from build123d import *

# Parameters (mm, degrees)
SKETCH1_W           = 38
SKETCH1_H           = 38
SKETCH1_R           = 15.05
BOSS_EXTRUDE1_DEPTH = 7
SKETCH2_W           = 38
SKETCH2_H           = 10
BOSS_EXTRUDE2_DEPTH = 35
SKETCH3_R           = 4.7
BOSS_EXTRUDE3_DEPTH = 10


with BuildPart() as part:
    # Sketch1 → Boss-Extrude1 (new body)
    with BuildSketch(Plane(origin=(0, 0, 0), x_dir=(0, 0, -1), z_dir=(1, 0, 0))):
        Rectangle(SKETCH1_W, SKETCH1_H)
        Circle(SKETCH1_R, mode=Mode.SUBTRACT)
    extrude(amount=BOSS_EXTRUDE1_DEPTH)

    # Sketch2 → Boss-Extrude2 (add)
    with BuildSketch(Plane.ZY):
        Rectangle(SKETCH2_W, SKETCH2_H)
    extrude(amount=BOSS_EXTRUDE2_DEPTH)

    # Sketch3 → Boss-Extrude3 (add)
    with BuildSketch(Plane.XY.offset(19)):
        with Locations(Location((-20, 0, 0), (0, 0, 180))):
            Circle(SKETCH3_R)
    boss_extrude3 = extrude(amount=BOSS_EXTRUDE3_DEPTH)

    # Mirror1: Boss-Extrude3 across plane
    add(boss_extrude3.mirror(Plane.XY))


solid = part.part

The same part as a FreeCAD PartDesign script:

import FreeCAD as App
import Part
import Sketcher
from FreeCAD import Vector

doc = App.newDocument("Part")
params = doc.addObject("Spreadsheet::Sheet", "Params")
for row, (alias, value) in enumerate([
    ("sketch1_diameter", "30.1 mm"),
    ("sketch1_width", "38 mm"),
    ("pad1_length", "7 mm"),
    ("sketch2_width", "10 mm"),
    ("sketch2_height", "38 mm"),
    ("pad2_length", "35 mm"),
    ("sketch3_diameter", "9.4 mm"),
    ("pad3_length", "10 mm"),
], start=1):
    params.set(f"A{row}", alias)
    params.set(f"B{row}", "=" + value)
    params.setAlias(f"B{row}", alias)

body = doc.addObject("PartDesign::Body", "Body")

sketch1 = body.newObject("Sketcher::SketchObject", "Sketch")
sketch1.AttachmentSupport = (doc.getObject("YZ_Plane"), [""])
sketch1.MapMode = "FlatFace"
sketch1.addGeometry([
    Part.LineSegment(Vector(19, 19, 0), Vector(-19, 19, 0)),
    Part.LineSegment(Vector(-19, 19, 0), Vector(-19, -19, 0)),
    Part.LineSegment(Vector(-19, -19, 0), Vector(19, -19, 0)),
    Part.LineSegment(Vector(19, -19, 0), Vector(19, 19, 0)),
    Part.Circle(Vector(0, 0, 0), Vector(0, 0, 1), 15.05),
], False)
sketch1.addConstraint([
    Sketcher.Constraint("Coincident", 0, 2, 1, 1),
    Sketcher.Constraint("Coincident", 1, 2, 2, 1),
    Sketcher.Constraint("Coincident", 2, 2, 3, 1),
    Sketcher.Constraint("Coincident", 3, 2, 0, 1),
    Sketcher.Constraint("Horizontal", 0),
    Sketcher.Constraint("Vertical", 1),
    Sketcher.Constraint("Horizontal", 2),
    Sketcher.Constraint("Vertical", 3),
    Sketcher.Constraint("Coincident", 4, 3, -1, 1),
    Sketcher.Constraint("Symmetric", 0, 2, 2, 2, -1, 1),
    Sketcher.Constraint("Equal", 2, 1),
    Sketcher.Constraint("Diameter", 4, 30.1),
    Sketcher.Constraint("DistanceX", 0, 2, 0, 1, 38.0),
])
sketch1.setExpression("Constraints[11]", "Params.sketch1_diameter")
sketch1.setExpression("Constraints[12]", "Params.sketch1_width")
pad1 = body.newObject("PartDesign::Pad", "Pad")
pad1.Profile = sketch1
pad1.setExpression("Length", "Params.pad1_length")

sketch2 = body.newObject("Sketcher::SketchObject", "Sketch001")
sketch2.AttachmentSupport = (doc.getObject("YZ_Plane"), [""])
sketch2.MapMode = "FlatFace"
sketch2.addGeometry([
    Part.LineSegment(Vector(5, -19, 0), Vector(-5, -19, 0)),
    Part.LineSegment(Vector(-5, -19, 0), Vector(-5, 19, 0)),
    Part.LineSegment(Vector(-5, 19, 0), Vector(5, 19, 0)),
    Part.LineSegment(Vector(5, 19, 0), Vector(5, -19, 0)),
], False)
sketch2.addConstraint([
    Sketcher.Constraint("Coincident", 0, 2, 1, 1),
    Sketcher.Constraint("Coincident", 1, 2, 2, 1),
    Sketcher.Constraint("Coincident", 2, 2, 3, 1),
    Sketcher.Constraint("Coincident", 3, 2, 0, 1),
    Sketcher.Constraint("Horizontal", 0),
    Sketcher.Constraint("Vertical", 1),
    Sketcher.Constraint("Horizontal", 2),
    Sketcher.Constraint("Vertical", 3),
    Sketcher.Constraint("Symmetric", 0, 2, 2, 2, -1, 1),
    Sketcher.Constraint("DistanceX", 0, 2, 0, 1, 10.0),
    Sketcher.Constraint("DistanceY", 1, 1, 1, 2, 38.0),
])
sketch2.setExpression("Constraints[9]", "Params.sketch2_width")
sketch2.setExpression("Constraints[10]", "Params.sketch2_height")
pad2 = body.newObject("PartDesign::Pad", "Pad001")
pad2.Profile = sketch2
pad2.setExpression("Length", "Params.pad2_length")
pad2.Reversed = True

sketch3 = body.newObject("Sketcher::SketchObject", "Sketch002")
sketch3.AttachmentSupport = (doc.getObject("XY_Plane"), [""])
sketch3.MapMode = "FlatFace"
sketch3.AttachmentOffset = App.Placement(Vector(0, 0, 19), App.Rotation())
sketch3.addGeometry(Part.Circle(Vector(-20, 0, 0), Vector(0, 0, 1), 4.7), False)
sketch3.addConstraint([
    Sketcher.Constraint("PointOnObject", 0, 3, -1),
    Sketcher.Constraint("Diameter", 0, 9.4),
    Sketcher.Constraint("DistanceX", 0, 3, -1, 1, 20.0),
])
sketch3.setExpression("Constraints[1]", "Params.sketch3_diameter")
pad3 = body.newObject("PartDesign::Pad", "Pad002")
pad3.Profile = sketch3
pad3.setExpression("Length", "Params.pad3_length")
doc.recompute()

mirrored = body.newObject("PartDesign::Mirrored", "Mirrored")
mirrored.Originals = [pad3]
mirrored.MirrorPlane = (doc.getObject("XY_Plane"), [""])
body.Tip = mirrored

doc.recompute()
